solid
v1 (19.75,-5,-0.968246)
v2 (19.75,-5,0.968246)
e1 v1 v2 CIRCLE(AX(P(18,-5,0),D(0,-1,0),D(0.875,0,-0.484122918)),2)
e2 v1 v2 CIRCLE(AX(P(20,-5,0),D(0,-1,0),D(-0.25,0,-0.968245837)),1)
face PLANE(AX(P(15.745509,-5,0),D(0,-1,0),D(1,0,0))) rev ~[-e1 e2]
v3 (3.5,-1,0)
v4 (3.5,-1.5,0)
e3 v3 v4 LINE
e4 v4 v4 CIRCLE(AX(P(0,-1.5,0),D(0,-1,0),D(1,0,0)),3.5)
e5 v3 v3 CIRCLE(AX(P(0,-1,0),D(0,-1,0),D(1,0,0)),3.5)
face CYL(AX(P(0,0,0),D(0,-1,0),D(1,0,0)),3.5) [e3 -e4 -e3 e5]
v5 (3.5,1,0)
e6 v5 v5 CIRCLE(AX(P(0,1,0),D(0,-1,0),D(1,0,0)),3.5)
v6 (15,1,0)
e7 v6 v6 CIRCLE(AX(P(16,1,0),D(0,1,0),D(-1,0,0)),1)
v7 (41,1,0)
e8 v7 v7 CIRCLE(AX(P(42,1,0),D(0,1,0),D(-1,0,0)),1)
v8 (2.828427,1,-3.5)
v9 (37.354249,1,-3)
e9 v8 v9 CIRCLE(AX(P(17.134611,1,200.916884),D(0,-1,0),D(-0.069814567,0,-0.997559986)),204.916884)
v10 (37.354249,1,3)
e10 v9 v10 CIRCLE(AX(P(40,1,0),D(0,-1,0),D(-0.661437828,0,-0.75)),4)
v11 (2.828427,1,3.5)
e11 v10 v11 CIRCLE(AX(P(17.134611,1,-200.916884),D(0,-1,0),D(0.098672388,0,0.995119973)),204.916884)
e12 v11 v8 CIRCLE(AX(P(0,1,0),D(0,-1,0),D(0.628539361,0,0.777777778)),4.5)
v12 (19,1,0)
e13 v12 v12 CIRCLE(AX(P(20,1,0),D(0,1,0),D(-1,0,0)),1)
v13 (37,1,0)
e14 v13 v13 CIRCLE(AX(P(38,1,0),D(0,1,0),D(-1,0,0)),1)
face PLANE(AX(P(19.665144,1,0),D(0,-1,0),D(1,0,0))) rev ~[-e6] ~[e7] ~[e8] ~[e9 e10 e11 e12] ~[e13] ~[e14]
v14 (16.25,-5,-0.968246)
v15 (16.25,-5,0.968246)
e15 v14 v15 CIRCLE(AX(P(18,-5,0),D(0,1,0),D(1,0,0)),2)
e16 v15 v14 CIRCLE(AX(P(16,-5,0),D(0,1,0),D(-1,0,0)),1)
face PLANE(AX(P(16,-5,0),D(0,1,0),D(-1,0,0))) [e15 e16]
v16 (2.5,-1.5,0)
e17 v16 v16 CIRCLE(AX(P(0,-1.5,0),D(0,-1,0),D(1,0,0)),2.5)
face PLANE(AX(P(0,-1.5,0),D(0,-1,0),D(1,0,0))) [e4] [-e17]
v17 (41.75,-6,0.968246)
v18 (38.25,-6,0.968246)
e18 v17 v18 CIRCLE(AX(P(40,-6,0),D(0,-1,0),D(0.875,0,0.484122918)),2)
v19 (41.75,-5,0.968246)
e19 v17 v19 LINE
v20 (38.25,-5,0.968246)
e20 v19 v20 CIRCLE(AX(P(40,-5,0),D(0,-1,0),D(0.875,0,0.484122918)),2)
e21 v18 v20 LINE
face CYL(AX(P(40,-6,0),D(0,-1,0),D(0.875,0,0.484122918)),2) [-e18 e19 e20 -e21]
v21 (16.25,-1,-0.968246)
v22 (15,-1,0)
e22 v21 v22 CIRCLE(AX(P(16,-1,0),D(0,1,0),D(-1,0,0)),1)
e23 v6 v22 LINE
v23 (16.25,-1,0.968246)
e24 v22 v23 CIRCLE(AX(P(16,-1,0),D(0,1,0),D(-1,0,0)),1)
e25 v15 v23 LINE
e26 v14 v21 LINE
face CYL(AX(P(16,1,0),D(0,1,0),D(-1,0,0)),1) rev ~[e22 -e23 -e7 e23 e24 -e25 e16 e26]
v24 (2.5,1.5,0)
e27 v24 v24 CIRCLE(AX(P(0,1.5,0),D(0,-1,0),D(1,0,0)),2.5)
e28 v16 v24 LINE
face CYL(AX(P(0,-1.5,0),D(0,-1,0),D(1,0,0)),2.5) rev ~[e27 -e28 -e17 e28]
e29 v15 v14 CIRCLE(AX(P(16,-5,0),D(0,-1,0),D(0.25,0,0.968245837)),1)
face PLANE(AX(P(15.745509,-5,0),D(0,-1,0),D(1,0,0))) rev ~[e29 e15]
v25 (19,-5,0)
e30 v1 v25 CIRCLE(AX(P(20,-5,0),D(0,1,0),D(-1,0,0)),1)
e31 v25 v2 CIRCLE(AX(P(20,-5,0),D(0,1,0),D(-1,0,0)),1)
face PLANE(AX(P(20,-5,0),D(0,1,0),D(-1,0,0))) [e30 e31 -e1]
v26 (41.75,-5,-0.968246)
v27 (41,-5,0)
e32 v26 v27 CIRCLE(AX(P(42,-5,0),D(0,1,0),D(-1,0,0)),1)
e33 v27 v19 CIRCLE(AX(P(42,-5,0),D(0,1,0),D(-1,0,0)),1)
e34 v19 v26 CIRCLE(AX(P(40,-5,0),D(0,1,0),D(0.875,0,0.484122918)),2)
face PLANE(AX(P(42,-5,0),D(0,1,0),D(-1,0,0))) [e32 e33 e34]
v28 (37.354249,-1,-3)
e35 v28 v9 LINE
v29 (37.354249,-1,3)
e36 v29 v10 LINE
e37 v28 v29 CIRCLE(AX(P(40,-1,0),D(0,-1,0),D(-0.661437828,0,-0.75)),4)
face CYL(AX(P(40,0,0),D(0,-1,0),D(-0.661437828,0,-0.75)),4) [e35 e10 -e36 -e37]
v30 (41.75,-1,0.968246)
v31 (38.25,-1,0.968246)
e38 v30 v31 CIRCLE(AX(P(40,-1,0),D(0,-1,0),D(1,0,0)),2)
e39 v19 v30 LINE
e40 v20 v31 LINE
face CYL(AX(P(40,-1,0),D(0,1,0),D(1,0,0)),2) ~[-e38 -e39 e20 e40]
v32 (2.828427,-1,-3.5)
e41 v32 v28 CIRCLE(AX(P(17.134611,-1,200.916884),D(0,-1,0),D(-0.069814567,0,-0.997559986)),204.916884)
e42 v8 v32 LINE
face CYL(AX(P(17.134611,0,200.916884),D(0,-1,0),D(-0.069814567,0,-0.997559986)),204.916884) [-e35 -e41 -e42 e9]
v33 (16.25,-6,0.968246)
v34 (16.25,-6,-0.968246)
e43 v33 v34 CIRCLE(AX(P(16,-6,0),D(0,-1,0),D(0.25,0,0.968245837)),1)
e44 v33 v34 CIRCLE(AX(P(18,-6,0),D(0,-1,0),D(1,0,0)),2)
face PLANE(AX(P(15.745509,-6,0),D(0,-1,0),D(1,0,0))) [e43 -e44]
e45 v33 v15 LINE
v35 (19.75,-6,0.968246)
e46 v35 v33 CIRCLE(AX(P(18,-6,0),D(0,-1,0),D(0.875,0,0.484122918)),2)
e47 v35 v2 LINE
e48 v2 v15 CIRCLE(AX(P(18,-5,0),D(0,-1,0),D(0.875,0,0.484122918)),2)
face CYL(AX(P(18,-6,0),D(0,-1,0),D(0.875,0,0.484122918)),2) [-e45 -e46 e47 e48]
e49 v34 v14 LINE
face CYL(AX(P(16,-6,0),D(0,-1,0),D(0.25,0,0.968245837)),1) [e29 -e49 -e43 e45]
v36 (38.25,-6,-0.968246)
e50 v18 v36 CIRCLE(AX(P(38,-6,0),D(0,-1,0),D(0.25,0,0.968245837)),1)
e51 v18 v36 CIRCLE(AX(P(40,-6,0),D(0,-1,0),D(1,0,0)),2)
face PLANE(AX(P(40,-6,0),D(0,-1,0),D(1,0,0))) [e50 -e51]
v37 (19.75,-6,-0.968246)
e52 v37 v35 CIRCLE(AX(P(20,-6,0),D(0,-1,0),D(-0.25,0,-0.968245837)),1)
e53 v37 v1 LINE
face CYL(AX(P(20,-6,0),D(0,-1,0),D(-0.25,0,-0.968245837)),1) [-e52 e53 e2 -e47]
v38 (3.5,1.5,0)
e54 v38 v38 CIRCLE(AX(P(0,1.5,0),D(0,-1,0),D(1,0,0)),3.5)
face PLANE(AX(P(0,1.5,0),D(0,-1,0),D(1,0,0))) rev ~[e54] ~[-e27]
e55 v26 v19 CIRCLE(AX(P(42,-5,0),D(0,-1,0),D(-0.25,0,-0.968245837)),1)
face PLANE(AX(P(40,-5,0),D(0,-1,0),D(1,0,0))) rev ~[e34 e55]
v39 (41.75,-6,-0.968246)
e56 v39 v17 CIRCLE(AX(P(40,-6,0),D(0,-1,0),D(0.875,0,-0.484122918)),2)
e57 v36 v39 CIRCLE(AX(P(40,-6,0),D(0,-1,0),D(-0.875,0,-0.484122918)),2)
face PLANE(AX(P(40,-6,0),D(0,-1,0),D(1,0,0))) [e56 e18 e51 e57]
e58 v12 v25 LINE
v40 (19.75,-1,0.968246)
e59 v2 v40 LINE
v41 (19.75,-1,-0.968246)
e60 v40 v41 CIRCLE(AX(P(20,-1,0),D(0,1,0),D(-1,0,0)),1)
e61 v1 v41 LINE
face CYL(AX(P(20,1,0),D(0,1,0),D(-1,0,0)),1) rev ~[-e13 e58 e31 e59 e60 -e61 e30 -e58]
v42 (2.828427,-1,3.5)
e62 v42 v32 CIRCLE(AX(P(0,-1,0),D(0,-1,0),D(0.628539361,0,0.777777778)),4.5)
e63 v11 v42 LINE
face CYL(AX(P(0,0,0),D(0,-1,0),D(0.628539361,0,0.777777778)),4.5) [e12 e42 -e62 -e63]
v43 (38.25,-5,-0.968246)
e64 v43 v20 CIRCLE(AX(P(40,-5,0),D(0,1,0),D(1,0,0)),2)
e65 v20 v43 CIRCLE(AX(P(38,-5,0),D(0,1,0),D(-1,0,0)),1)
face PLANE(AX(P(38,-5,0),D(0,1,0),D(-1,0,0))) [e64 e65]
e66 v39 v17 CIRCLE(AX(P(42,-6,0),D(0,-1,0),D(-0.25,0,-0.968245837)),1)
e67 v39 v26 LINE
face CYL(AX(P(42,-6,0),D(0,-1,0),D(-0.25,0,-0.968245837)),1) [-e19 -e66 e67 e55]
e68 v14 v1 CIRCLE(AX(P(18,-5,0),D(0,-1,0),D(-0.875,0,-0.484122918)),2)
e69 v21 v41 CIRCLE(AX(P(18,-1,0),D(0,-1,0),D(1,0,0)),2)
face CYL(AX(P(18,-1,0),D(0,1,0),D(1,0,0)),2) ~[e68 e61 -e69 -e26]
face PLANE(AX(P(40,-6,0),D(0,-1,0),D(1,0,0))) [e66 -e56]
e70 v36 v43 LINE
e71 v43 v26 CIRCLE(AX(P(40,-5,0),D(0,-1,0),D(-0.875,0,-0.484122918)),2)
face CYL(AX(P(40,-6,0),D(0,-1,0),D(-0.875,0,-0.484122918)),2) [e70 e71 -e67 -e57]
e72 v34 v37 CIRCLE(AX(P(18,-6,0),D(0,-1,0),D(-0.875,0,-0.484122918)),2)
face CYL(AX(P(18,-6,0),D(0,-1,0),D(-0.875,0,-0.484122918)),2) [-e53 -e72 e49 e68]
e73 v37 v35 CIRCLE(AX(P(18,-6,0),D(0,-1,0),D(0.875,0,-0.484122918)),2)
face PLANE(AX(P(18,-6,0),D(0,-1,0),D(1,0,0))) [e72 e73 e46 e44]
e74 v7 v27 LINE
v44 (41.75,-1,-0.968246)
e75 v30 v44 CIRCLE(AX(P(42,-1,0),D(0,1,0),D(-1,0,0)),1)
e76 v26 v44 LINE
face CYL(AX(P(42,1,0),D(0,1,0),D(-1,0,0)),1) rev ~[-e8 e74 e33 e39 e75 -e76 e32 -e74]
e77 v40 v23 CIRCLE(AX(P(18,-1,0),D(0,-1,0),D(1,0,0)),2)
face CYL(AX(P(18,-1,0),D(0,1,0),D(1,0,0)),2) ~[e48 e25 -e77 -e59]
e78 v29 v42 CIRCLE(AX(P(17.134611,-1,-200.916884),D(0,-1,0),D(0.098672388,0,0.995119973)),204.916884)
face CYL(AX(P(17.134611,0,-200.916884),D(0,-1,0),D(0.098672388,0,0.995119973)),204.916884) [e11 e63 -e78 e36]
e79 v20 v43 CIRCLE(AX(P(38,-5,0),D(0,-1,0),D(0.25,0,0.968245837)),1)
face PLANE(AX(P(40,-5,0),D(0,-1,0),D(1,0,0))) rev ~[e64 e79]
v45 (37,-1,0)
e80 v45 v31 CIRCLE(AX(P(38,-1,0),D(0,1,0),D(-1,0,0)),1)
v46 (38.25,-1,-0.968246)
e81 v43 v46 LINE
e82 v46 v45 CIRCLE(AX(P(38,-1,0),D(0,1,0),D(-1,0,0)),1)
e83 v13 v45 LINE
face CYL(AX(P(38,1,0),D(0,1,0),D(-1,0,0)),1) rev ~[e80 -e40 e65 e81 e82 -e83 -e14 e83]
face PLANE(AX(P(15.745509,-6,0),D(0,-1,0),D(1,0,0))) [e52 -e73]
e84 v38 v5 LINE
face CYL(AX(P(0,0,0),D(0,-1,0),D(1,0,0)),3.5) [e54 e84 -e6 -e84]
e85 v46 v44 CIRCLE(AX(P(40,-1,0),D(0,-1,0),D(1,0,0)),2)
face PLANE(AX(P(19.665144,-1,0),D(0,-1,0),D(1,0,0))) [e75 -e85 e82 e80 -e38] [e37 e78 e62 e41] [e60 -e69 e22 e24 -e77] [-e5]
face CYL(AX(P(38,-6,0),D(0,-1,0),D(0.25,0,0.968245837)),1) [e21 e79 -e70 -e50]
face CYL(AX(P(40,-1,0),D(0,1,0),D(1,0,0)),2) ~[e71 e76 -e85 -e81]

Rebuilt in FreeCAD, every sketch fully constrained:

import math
import FreeCAD as App
import Part
import Sketcher
from FreeCAD import Vector
Q = App.Units.Quantity

doc = App.newDocument("Part")
body = doc.addObject("PartDesign::Body", "Body")

# Sketch on XZ plane
sketch1 = doc.addObject("Sketcher::SketchObject", "Sketch")
body.addObject(sketch1)
sketch1.AttachmentSupport = (doc.XZ_Plane, [""])
sketch1.MapMode = "FlatFace"
sketch1.addGeometry(Part.ArcOfCircle(Part.Circle(Vector(17.1, -200.9, 0), Vector(0, 0, 1), 204.9), math.radians(84.34), math.radians(94)), False)
sketch1.addGeometry(Part.ArcOfCircle(Part.Circle(Vector(0, 0, 0), Vector(0, 0, 1), 4.5), math.radians(51), math.radians(309)), False)
sketch1.addGeometry(Part.ArcOfCircle(Part.Circle(Vector(17.1, 200.9, 0), Vector(0, 0, 1), 204.9), math.radians(-94), math.radians(-84.34)), False)
sketch1.addGeometry(Part.ArcOfCircle(Part.Circle(Vector(40, 0, 0), Vector(0, 0, 1), 4), math.radians(-131), math.radians(131)), False)
sketch1.addConstraint(Sketcher.Constraint("Coincident", 0, 2, 1, 1))
sketch1.addConstraint(Sketcher.Constraint("Coincident", 1, 2, 2, 1))
sketch1.addConstraint(Sketcher.Constraint("Coincident", 2, 2, 3, 1))
sketch1.addConstraint(Sketcher.Constraint("Coincident", 3, 2, 0, 1))
sketch1.addConstraint(Sketcher.Constraint("Coincident", 1, 3, -1, 1))
sketch1.addConstraint(Sketcher.Constraint("Equal", 0, 2))
sketch1.addConstraint(Sketcher.Constraint("Symmetric", 0, 3, 2, 3, -1))
sketch1.addConstraint(Sketcher.Constraint("PointOnObject", 3, 3, -1))
sketch1.addConstraint(Sketcher.Constraint("Radius", 3, Q("4 mm")))
sketch1.addConstraint(Sketcher.Constraint("Radius", 1, Q("4.5 mm")))
sketch1.addConstraint(Sketcher.Constraint("DistanceX", -1, 1, 3, 3, Q("40 mm")))
sketch1.addConstraint(Sketcher.Constraint("DistanceY", 2, 2, -1, 1, Q("3 mm")))
sketch1.addConstraint(Sketcher.Constraint("DistanceY", 1, 2, 0, 2, Q("7 mm")))
sketch1.addConstraint(Sketcher.Constraint("Radius", 0, Q("204.916884 mm")))
pad1 = doc.addObject("PartDesign::Pad", "Pad")
body.addObject(pad1)
pad1.Profile = sketch1
pad1.Length = 2
pad1.Midplane = True

# Sketch on XZ plane
sketch2 = doc.addObject("Sketcher::SketchObject", "Sketch001")
body.addObject(sketch2)
sketch2.AttachmentSupport = (doc.XZ_Plane, [""])
sketch2.MapMode = "FlatFace"
sketch2.addGeometry(Part.Circle(Vector(0, 0, 0), Vector(0, 0, 1), 3.5), False)
sketch2.addConstraint(Sketcher.Constraint("Coincident", 0, 3, -1, 1))
sketch2.addConstraint(Sketcher.Constraint("Diameter", 0, Q("7 mm")))
pad2 = doc.addObject("PartDesign::Pad", "Pad001")
body.addObject(pad2)
pad2.Profile = sketch2
pad2.Length = 3
pad2.Midplane = True

# Sketch on XZ plane
sketch3 = doc.addObject("Sketcher::SketchObject", "Sketch002")
body.addObject(sketch3)
sketch3.AttachmentSupport = (doc.XZ_Plane, [""])
sketch3.MapMode = "FlatFace"
sketch3.AttachmentOffset = App.Placement(Vector(0, 0, 1.5), App.Rotation())
sketch3.addGeometry(Part.Circle(Vector(0, 0, 0), Vector(0, 0, 1), 2.5), False)
sketch3.addConstraint(Sketcher.Constraint("Coincident", 0, 3, -1, 1))
sketch3.addConstraint(Sketcher.Constraint("Diameter", 0, Q("5 mm")))
pocket1 = doc.addObject("PartDesign::Pocket", "Pocket")
body.addObject(pocket1)
pocket1.Profile = sketch3
pocket1.Type = "ThroughAll"

# Sketch on XZ plane
sketch4 = doc.addObject("Sketcher::SketchObject", "Sketch003")
body.addObject(sketch4)
sketch4.AttachmentSupport = (doc.XZ_Plane, [""])
sketch4.MapMode = "FlatFace"
sketch4.AttachmentOffset = App.Placement(Vector(0, 0, 1), App.Rotation())
sketch4.addGeometry(Part.Circle(Vector(18, 0, 0), Vector(0, 0, 1), 2), False)
sketch4.addGeometry(Part.Circle(Vector(40, 0, 0), Vector(0, 0, 1), 2), False)
sketch4.addConstraint(Sketcher.Constraint("Equal", 0, 1))
sketch4.addConstraint(Sketcher.Constraint("PointOnObject", 0, 3, -1))
sketch4.addConstraint(Sketcher.Constraint("PointOnObject", 1, 3, -1))
sketch4.addConstraint(Sketcher.Constraint("Diameter", 0, Q("4 mm")))
sketch4.addConstraint(Sketcher.Constraint("DistanceX", -1, 1, 0, 3, Q("18 mm")))
sketch4.addConstraint(Sketcher.Constraint("DistanceX", -1, 1, 1, 3, Q("40 mm")))
pad3 = doc.addObject("PartDesign::Pad", "Pad002")
body.addObject(pad3)
pad3.Profile = sketch4
pad3.Length = 5

# Sketch on XZ plane
sketch5 = doc.addObject("Sketcher::SketchObject", "Sketch004")
body.addObject(sketch5)
sketch5.AttachmentSupport = (doc.XZ_Plane, [""])
sketch5.MapMode = "FlatFace"
sketch5.AttachmentOffset = App.Placement(Vector(0, 0, 6), App.Rotation())
sketch5.addGeometry(Part.ArcOfCircle(Part.Circle(Vector(16, 0, 0), Vector(0, 0, 1), 1), math.radians(76), math.radians(284)), False)
sketch5.addGeometry(Part.ArcOfCircle(Part.Circle(Vector(18, 0, 0), Vector(0, 0, 1), 2), math.radians(-151), math.radians(-29)), False)
sketch5.addGeometry(Part.ArcOfCircle(Part.Circle(Vector(20, 0, 0), Vector(0, 0, 1), 1), math.radians(-104), math.radians(104)), False)
sketch5.addGeometry(Part.ArcOfCircle(Part.Circle(Vector(18, 0, 0), Vector(0, 0, 1), 2), math.radians(29), math.radians(151)), False)
sketch5.addGeometry(Part.ArcOfCircle(Part.Circle(Vector(42, 0, 0), Vector(0, 0, 1), 1), math.radians(-104), math.radians(104)), False)
sketch5.addGeometry(Part.ArcOfCircle(Part.Circle(Vector(40, 0, 0), Vector(0, 0, 1), 2), math.radians(29), math.radians(151)), False)
sketch5.addGeometry(Part.ArcOfCircle(Part.Circle(Vector(38, 0, 0), Vector(0, 0, 1), 1), math.radians(76), math.radians(284)), False)
sketch5.addGeometry(Part.ArcOfCircle(Part.Circle(Vector(40, 0, 0), Vector(0, 0, 1), 2), math.radians(-151), math.radians(-29)), False)
sketch5.addConstraint(Sketcher.Constraint("Coincident", 0, 2, 1, 1))
sketch5.addConstraint(Sketcher.Constraint("Coincident", 1, 2, 2, 1))
sketch5.addConstraint(Sketcher.Constraint("Coincident", 2, 2, 3, 1))
sketch5.addConstraint(Sketcher.Constraint("Coincident", 3, 2, 0, 1))
sketch5.addConstraint(Sketcher.Constraint("Coincident", 4, 2, 5, 1))
sketch5.addConstraint(Sketcher.Constraint("Coincident", 5, 2, 6, 1))
sketch5.addConstraint(Sketcher.Constraint("Coincident", 6, 2, 7, 1))
sketch5.addConstraint(Sketcher.Constraint("Coincident", 7, 2, 4, 1))
sketch5.addConstraint(Sketcher.Constraint("Coincident", 3, 3, 1, 3))
sketch5.addConstraint(Sketcher.Constraint("Coincident", 7, 3, 5, 3))
sketch5.addConstraint(Sketcher.Constraint("Equal", 0, 2))
sketch5.addConstraint(Sketcher.Constraint("Equal", 1, 3))
sketch5.addConstraint(Sketcher.Constraint("Equal", 2, 4))
sketch5.addConstraint(Sketcher.Constraint("Equal", 3, 5))
sketch5.addConstraint(Sketcher.Constraint("Equal", 4, 6))
sketch5.addConstraint(Sketcher.Constraint("Equal", 5, 7))
sketch5.addConstraint(Sketcher.Constraint("Symmetric", 1, 2, 2, 2, -1))
sketch5.addConstraint(Sketcher.Constraint("Symmetric", 5, 2, 6, 2, -1))
sketch5.addConstraint(Sketcher.Constraint("PointOnObject", 0, 3, -1))
sketch5.addConstraint(Sketcher.Constraint("PointOnObject", 4, 3, -1))
sketch5.addConstraint(Sketcher.Constraint("Horizontal", 0, 2, 1, 2))
sketch5.addConstraint(Sketcher.Constraint("Horizontal", 3, 2, 4, 2))
sketch5.addConstraint(Sketcher.Constraint("Horizontal", 4, 2, 5, 2))
sketch5.addConstraint(Sketcher.Constraint("Radius", 0, Q("1 mm")))
sketch5.addConstraint(Sketcher.Constraint("Radius", 1, Q("2 mm")))
sketch5.addConstraint(Sketcher.Constraint("DistanceX", -1, 1, 0, 3, Q("16 mm")))
sketch5.addConstraint(Sketcher.Constraint("DistanceX", -1, 1, 1, 3, Q("18 mm")))
sketch5.addConstraint(Sketcher.Constraint("DistanceX", -1, 1, 4, 3, Q("42 mm")))
pad4 = doc.addObject("PartDesign::Pad", "Pad003")
body.addObject(pad4)
pad4.Profile = sketch5
pad4.Length = 1
pad4.Reversed = True

# Sketch on XZ plane
sketch6 = doc.addObject("Sketcher::SketchObject", "Sketch005")
body.addObject(sketch6)
sketch6.AttachmentSupport = (doc.XZ_Plane, [""])
sketch6.MapMode = "FlatFace"
sketch6.AttachmentOffset = App.Placement(Vector(0, 0, -1), App.Rotation())
sketch6.addGeometry(Part.Circle(Vector(42, 0, 0), Vector(0, 0, 1), 1), False)
sketch6.addGeometry(Part.Circle(Vector(38, 0, 0), Vector(0, 0, 1), 1), False)
sketch6.addGeometry(Part.Circle(Vector(20, 0, 0), Vector(0, 0, 1), 1), False)
sketch6.addGeometry(Part.Circle(Vector(16, 0, 0), Vector(0, 0, 1), 1), False)
sketch6.addConstraint(Sketcher.Constraint("Equal", 0, 1))
sketch6.addConstraint(Sketcher.Constraint("Equal", 1, 2))
sketch6.addConstraint(Sketcher.Constraint("Equal", 2, 3))
sketch6.addConstraint(Sketcher.Constraint("PointOnObject", 0, 3, -1))
sketch6.addConstraint(Sketcher.Constraint("PointOnObject", 1, 3, -1))
sketch6.addConstraint(Sketcher.Constraint("PointOnObject", 2, 3, -1))
sketch6.addConstraint(Sketcher.Constraint("PointOnObject", 3, 3, -1))
sketch6.addConstraint(Sketcher.Constraint("Diameter", 0, Q("2 mm")))
sketch6.addConstraint(Sketcher.Constraint("DistanceX", -1, 1, 0, 3, Q("42 mm")))
sketch6.addConstraint(Sketcher.Constraint("DistanceX", -1, 1, 1, 3, Q("38 mm")))
sketch6.addConstraint(Sketcher.Constraint("DistanceX", -1, 1, 2, 3, Q("20 mm")))
sketch6.addConstraint(Sketcher.Constraint("DistanceX", -1, 1, 3, 3, Q("16 mm")))
pocket2 = doc.addObject("PartDesign::Pocket", "Pocket001")
body.addObject(pocket2)
pocket2.Profile = sketch6
pocket2.Length = 6
pocket2.Reversed = True

doc.recompute()
